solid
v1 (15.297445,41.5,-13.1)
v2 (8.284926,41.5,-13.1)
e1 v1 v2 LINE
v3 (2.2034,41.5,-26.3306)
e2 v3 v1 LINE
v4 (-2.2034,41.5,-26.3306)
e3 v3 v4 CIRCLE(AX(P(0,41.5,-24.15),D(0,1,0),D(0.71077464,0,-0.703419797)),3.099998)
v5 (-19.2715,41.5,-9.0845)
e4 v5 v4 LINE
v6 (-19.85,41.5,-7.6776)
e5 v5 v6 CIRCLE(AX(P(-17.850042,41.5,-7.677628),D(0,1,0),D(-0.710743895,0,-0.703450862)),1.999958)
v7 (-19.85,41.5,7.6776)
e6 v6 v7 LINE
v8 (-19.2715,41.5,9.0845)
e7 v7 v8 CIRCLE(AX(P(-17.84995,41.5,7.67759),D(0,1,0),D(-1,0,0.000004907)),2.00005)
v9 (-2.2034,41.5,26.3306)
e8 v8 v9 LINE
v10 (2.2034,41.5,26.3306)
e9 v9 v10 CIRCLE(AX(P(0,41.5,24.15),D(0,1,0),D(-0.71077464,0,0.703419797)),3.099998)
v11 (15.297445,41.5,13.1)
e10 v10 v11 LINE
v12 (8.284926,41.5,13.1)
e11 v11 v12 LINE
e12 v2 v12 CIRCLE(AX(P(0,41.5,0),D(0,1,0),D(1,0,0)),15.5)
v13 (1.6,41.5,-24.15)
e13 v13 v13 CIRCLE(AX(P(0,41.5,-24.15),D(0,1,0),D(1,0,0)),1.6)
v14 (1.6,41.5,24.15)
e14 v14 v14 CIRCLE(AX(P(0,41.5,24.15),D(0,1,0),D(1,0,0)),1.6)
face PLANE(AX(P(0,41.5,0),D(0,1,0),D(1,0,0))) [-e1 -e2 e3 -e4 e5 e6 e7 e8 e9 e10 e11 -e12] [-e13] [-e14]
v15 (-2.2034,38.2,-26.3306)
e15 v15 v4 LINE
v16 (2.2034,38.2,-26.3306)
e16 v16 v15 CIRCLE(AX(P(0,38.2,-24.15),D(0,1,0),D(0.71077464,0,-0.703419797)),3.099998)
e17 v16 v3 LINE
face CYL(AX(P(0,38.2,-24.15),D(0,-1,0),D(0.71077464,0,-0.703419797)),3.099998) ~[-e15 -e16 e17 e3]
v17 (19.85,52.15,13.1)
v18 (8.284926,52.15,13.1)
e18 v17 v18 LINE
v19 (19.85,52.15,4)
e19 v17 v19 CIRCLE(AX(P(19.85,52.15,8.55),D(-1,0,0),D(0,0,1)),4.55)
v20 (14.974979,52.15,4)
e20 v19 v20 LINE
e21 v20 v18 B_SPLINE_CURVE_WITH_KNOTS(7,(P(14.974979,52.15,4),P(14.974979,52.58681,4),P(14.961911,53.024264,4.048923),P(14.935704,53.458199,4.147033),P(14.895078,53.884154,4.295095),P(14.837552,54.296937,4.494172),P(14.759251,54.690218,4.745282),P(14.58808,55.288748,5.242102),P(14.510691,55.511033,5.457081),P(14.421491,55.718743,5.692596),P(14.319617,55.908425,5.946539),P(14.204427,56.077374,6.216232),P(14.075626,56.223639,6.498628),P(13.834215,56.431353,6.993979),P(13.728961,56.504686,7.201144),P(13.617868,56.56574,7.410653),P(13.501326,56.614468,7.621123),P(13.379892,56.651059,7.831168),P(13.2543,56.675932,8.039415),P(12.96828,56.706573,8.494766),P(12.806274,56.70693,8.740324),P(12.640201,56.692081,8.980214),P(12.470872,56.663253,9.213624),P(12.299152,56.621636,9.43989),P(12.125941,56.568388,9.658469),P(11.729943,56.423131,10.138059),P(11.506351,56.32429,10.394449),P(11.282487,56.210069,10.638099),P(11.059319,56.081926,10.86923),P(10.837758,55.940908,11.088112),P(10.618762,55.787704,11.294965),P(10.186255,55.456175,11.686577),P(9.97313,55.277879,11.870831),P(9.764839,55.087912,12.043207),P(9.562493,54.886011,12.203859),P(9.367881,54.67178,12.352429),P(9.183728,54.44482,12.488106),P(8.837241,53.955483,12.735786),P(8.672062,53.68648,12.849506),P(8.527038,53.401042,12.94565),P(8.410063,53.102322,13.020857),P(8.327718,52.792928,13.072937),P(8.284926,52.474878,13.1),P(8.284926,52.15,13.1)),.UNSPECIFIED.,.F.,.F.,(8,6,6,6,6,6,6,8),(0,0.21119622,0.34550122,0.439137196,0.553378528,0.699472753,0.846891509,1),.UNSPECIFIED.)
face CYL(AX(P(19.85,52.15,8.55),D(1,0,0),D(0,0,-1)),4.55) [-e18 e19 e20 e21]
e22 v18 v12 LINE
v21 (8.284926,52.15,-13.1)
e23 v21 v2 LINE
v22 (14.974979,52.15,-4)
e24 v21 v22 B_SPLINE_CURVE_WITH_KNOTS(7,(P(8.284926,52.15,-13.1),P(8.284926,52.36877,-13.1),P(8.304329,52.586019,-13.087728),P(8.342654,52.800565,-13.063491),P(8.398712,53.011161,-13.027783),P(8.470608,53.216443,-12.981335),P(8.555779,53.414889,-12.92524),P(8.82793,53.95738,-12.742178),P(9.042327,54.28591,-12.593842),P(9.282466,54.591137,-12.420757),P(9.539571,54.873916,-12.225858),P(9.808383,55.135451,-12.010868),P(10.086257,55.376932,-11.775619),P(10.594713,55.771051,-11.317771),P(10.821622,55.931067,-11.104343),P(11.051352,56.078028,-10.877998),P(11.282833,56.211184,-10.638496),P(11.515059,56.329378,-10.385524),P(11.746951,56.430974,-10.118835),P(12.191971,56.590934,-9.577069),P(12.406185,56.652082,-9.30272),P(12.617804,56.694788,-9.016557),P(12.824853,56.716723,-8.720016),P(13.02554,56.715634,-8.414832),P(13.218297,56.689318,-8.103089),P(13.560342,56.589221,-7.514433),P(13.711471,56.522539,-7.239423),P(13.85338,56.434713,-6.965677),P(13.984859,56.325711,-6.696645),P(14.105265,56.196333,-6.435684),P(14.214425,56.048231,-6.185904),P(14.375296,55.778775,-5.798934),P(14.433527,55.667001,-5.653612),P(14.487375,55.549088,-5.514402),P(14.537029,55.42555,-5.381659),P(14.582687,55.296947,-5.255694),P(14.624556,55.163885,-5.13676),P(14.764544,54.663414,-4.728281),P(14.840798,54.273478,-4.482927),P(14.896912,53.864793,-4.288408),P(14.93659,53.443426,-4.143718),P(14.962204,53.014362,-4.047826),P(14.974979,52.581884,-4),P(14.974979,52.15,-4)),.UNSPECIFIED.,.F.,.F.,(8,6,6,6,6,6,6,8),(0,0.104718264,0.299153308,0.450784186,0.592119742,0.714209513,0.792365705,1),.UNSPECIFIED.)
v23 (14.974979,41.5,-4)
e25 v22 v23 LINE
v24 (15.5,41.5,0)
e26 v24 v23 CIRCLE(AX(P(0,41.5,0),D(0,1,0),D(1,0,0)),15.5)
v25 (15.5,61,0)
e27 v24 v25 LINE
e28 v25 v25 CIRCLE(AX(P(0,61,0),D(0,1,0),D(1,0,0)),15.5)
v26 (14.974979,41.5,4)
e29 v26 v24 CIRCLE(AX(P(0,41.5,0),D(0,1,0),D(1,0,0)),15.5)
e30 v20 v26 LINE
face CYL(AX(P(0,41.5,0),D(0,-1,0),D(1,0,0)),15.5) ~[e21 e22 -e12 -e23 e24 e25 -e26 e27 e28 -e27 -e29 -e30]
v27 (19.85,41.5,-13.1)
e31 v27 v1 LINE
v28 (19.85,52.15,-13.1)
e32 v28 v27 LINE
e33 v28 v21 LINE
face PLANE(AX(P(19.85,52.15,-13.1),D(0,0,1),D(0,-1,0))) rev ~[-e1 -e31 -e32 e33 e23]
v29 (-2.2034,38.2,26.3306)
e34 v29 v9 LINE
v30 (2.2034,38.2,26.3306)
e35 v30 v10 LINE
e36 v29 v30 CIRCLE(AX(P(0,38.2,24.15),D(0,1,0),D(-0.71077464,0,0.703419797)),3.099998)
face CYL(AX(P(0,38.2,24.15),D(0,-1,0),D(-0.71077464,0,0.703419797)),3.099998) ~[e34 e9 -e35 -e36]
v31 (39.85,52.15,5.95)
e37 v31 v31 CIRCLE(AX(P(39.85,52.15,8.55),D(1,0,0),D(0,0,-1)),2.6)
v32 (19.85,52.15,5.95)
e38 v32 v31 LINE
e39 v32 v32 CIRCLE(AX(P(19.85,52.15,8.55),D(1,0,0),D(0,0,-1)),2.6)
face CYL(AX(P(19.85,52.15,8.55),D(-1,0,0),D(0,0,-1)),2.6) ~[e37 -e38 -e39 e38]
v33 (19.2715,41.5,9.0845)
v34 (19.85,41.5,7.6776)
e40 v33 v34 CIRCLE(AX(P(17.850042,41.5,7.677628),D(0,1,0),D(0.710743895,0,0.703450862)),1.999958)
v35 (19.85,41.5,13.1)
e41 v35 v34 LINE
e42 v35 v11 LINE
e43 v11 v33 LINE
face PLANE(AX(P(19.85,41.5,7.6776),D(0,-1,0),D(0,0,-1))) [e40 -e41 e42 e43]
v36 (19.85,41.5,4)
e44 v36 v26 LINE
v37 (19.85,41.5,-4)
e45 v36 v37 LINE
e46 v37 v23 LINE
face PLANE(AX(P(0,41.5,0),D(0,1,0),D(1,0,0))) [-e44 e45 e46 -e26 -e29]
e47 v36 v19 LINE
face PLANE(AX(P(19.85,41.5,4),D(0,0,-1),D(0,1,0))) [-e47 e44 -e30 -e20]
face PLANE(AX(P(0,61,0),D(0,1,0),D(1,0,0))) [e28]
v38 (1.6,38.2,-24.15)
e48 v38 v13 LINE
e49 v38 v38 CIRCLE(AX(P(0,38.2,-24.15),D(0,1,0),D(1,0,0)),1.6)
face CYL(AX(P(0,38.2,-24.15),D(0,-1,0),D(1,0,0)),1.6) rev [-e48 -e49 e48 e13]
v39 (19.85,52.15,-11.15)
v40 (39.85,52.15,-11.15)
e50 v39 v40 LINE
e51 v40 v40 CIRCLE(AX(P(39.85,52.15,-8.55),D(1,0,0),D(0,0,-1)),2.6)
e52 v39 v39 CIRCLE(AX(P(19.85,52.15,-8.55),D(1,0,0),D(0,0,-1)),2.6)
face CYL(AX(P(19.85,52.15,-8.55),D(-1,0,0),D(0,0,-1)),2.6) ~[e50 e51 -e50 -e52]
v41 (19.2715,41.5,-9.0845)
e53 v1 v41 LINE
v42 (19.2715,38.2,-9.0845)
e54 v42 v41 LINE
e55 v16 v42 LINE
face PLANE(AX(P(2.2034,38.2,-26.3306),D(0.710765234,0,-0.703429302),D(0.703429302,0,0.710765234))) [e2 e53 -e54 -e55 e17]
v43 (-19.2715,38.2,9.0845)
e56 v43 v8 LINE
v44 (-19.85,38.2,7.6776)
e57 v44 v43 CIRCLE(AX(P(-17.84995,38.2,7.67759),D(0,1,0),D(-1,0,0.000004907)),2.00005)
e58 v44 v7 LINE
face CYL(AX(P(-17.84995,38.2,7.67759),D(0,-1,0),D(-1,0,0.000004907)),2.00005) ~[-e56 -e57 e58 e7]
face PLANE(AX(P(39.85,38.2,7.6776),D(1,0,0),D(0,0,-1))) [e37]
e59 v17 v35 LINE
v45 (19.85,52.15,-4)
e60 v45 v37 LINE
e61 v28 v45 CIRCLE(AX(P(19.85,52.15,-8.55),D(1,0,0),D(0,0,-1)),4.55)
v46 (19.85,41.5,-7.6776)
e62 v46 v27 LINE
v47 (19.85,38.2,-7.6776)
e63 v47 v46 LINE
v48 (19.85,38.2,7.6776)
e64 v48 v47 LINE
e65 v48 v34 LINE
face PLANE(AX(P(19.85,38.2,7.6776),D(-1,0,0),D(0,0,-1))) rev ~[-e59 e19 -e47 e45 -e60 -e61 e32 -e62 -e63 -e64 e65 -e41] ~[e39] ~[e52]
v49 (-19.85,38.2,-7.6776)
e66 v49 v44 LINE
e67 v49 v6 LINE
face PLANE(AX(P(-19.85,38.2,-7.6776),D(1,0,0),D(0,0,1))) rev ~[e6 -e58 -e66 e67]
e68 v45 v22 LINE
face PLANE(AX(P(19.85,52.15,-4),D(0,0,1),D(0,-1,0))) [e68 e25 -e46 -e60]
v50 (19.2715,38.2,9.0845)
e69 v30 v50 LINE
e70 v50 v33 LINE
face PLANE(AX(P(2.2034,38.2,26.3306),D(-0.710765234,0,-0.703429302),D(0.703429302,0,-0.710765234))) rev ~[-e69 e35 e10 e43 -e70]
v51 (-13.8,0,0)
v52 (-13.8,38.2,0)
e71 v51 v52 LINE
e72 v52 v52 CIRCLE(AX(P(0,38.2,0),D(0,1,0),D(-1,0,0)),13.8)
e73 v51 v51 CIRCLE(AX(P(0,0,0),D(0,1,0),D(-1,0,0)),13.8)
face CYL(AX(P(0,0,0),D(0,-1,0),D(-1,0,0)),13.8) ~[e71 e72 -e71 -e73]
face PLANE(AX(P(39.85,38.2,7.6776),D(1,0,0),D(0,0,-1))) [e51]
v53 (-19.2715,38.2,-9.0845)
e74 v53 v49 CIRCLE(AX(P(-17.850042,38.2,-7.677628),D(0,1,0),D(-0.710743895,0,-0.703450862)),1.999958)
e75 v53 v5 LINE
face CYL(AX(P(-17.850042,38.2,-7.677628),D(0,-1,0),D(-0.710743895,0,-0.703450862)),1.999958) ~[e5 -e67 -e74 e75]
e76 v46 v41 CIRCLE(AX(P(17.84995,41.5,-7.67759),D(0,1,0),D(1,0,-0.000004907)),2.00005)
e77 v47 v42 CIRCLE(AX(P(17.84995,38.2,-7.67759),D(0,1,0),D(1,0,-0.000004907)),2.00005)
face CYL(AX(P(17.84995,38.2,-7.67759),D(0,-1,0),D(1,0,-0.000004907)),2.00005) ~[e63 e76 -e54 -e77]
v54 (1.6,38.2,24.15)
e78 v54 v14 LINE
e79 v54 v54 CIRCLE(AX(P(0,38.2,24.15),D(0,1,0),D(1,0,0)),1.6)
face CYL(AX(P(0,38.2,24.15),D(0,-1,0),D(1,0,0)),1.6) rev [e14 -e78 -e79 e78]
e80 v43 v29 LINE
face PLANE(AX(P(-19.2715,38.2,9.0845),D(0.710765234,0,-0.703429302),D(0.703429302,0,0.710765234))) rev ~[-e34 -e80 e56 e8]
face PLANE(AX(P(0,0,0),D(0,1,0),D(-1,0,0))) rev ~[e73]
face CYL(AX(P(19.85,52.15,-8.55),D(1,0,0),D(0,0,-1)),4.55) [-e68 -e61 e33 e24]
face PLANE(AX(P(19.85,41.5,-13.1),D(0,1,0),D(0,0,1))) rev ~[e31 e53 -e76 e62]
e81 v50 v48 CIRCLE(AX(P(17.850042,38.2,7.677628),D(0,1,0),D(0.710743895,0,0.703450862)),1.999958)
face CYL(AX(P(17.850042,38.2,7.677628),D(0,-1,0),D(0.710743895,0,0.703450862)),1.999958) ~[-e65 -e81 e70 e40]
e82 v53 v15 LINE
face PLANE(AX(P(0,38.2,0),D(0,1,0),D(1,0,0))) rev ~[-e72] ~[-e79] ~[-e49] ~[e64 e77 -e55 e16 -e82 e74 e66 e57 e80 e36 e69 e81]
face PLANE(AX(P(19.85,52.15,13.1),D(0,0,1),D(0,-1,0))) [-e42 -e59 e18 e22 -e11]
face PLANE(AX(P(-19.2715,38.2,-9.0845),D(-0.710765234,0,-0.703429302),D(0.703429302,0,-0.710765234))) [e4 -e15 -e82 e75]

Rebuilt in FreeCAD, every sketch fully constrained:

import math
import FreeCAD as App
import Part
import Sketcher
Q = App.Units.Quantity

doc = App.newDocument("Part")
body = doc.addObject("PartDesign::Body", "Body")

sketch1 = body.newObject("Sketcher::SketchObject", "Sketch")
sketch1.AttachmentSupport = (doc.getObject("XZ_Plane"), [""])
sketch1.MapMode = "FlatFace"
sketch1.addGeometry(Part.Circle(App.Vector(0, 0, 0), App.Vector(0, 0, 1), 14), False)
sketch1.addConstraint([
    Sketcher.Constraint("Coincident", 0, 3, -1, 1),
    Sketcher.Constraint("Diameter", 0, Q("27.6 mm")),
])
pad1 = body.newObject("PartDesign::Pad", "Pad")
pad1.Profile = sketch1
pad1.Length = 38.2
pad1.Reversed = True

sketch2 = body.newObject("Sketcher::SketchObject", "Sketch001")
sketch2.AttachmentSupport = (doc.getObject("XZ_Plane"), [""])
sketch2.MapMode = "FlatFace"
sketch2.AttachmentOffset = App.Placement(App.Vector(0, 0, -38.2), App.Rotation())
sketch2.addGeometry([
    Part.ArcOfCircle(Part.Circle(App.Vector(17.9, 7.7, 0), App.Vector(0, 0, 1), 2), math.radians(0), math.radians(45)),
    Part.LineSegment(App.Vector(19.9, 7.7, 0), App.Vector(19.9, -7.7, 0)),
    Part.ArcOfCircle(Part.Circle(App.Vector(17.9, -7.7, 0), App.Vector(0, 0, 1), 2), math.radians(-45), math.radians(0)),
    Part.LineSegment(App.Vector(19.3, -9.1, 0), App.Vector(2.2, -26.3, 0)),
    Part.ArcOfCircle(Part.Circle(App.Vector(0, -24.1, 0), App.Vector(0, 0, 1), 3.1), math.radians(-135), math.radians(-45)),
    Part.LineSegment(App.Vector(-2.2, -26.3, 0), App.Vector(-19.3, -9.1, 0)),
    Part.ArcOfCircle(Part.Circle(App.Vector(-17.9, -7.7, 0), App.Vector(0, 0, 1), 2), math.radians(180), math.radians(225)),
    Part.LineSegment(App.Vector(-19.9, -7.7, 0), App.Vector(-19.9, 7.7, 0)),
    Part.ArcOfCircle(Part.Circle(App.Vector(-17.9, 7.7, 0), App.Vector(0, 0, 1), 2), math.radians(135), math.radians(180)),
    Part.LineSegment(App.Vector(-19.3, 9.1, 0), App.Vector(-2.2, 26.3, 0)),
    Part.ArcOfCircle(Part.Circle(App.Vector(0, 24.1, 0), App.Vector(0, 0, 1), 3.1), math.radians(45), math.radians(135)),
    Part.LineSegment(App.Vector(2.2, 26.3, 0), App.Vector(19.3, 9.1, 0)),
    Part.Circle(App.Vector(0, 24.1, 0), App.Vector(0, 0, 1), 1.6),
    Part.Circle(App.Vector(0, -24.1, 0), App.Vector(0, 0, 1), 1.6),
], False)
sketch2.addConstraint([
    Sketcher.Constraint("Tangent", 0, 1, 1, 1),
    Sketcher.Constraint("Tangent", 1, 2, 2, 2),
    Sketcher.Constraint("Tangent", 2, 1, 3, 1),
    Sketcher.Constraint("Tangent", 3, 2, 4, 2),
    Sketcher.Constraint("Tangent", 4, 1, 5, 1),
    Sketcher.Constraint("Tangent", 5, 2, 6, 2),
    Sketcher.Constraint("Tangent", 6, 1, 7, 1),
    Sketcher.Constraint("Tangent", 7, 2, 8, 2),
    Sketcher.Constraint("Tangent", 8, 1, 9, 1),
    Sketcher.Constraint("Tangent", 9, 2, 10, 2),
    Sketcher.Constraint("Tangent", 10, 1, 11, 1),
    Sketcher.Constraint("Tangent", 11, 2, 0, 2),
    Sketcher.Constraint("Vertical", 1),
    Sketcher.Constraint("Vertical", 7),
    Sketcher.Constraint("Coincident", 12, 3, 10, 3),
    Sketcher.Constraint("Coincident", 13, 3, 4, 3),
    Sketcher.Constraint("Equal", 0, 2),
    Sketcher.Constraint("Equal", 2, 6),
    Sketcher.Constraint("Equal", 6, 8),
    Sketcher.Constraint("Equal", 4, 10),
    Sketcher.Constraint("Equal", 12, 13),
    Sketcher.Constraint("Symmetric", 0, 3, 6, 3, -1, 1),
    Sketcher.Constraint("Symmetric", 4, 3, 10, 3, -1, 1),
    Sketcher.Constraint("Symmetric", 3, 2, 4, 1, -2),
    Sketcher.Constraint("Parallel", 3, 9),
    Sketcher.Constraint("Radius", 0, Q("2 mm")),
    Sketcher.Constraint("Diameter", 12, Q("3.2 mm")),
    Sketcher.Constraint("Radius", 4, Q("3.1 mm")),
    Sketcher.Constraint("DistanceX", 6, 3, 2, 3, Q("35.7 mm")),
    Sketcher.Constraint("DistanceY", 4, 3, 10, 3, Q("48.3 mm")),
    Sketcher.Constraint("DistanceY", 1, 2, 1, 1, Q("15.3552 mm")),
])
pad2 = body.newObject("PartDesign::Pad", "Pad001")
pad2.Profile = sketch2
pad2.Length = 3.3
pad2.Reversed = True

sketch3 = body.newObject("Sketcher::SketchObject", "Sketch002")
sketch3.AttachmentSupport = (doc.getObject("XZ_Plane"), [""])
sketch3.MapMode = "FlatFace"
sketch3.AttachmentOffset = App.Placement(App.Vector(0, 0, -41.5), App.Rotation())
sketch3.addGeometry(Part.Circle(App.Vector(0, 0, 0), App.Vector(0, 0, 1), 16), False)
sketch3.addConstraint([
    Sketcher.Constraint("Coincident", 0, 3, -1, 1),
    Sketcher.Constraint("Diameter", 0, Q("31 mm")),
])
pad3 = body.newObject("PartDesign::Pad", "Pad002")
pad3.Profile = sketch3
pad3.Length = 19.5
pad3.Reversed = True

sketch4 = body.newObject("Sketcher::SketchObject", "Sketch003")
sketch4.AttachmentSupport = (doc.getObject("YZ_Plane"), [""])
sketch4.MapMode = "FlatFace"
sketch4.AttachmentOffset = App.Placement(App.Vector(0, 0, 19.85), App.Rotation())
sketch4.addGeometry([
    Part.LineSegment(App.Vector(41.5, 4, 0), App.Vector(52.1, 4, 0)),
    Part.ArcOfCircle(Part.Circle(App.Vector(52.1, 8.6, 0), App.Vector(0, 0, 1), 4.5), math.radians(-90), math.radians(90)),
    Part.LineSegment(App.Vector(52.1, 13.1, 0), App.Vector(41.5, 13.1, 0)),
    Part.LineSegment(App.Vector(41.5, 13.1, 0), App.Vector(41.5, 4, 0)),
    Part.ArcOfCircle(Part.Circle(App.Vector(52.1, -8.6, 0), App.Vector(0, 0, 1), 4.6), math.radians(-90), math.radians(90)),
    Part.LineSegment(App.Vector(52.1, -4, 0), App.Vector(41.5, -4, 0)),
    Part.LineSegment(App.Vector(41.5, -4, 0), App.Vector(41.5, -13.1, 0)),
    Part.LineSegment(App.Vector(41.5, -13.1, 0), App.Vector(52.1, -13.1, 0)),
], False)
sketch4.addConstraint([
    Sketcher.Constraint("Tangent", 0, 2, 1, 1),
    Sketcher.Constraint("Tangent", 1, 2, 2, 1),
    Sketcher.Constraint("Coincident", 2, 2, 3, 1),
    Sketcher.Constraint("Coincident", 3, 2, 0, 1),
    Sketcher.Constraint("Tangent", 4, 2, 5, 1),
    Sketcher.Constraint("Coincident", 5, 2, 6, 1),
    Sketcher.Constraint("Coincident", 6, 2, 7, 1),
    Sketcher.Constraint("Tangent", 7, 2, 4, 1),
    Sketcher.Constraint("Horizontal", 0),
    Sketcher.Constraint("Horizontal", 2),
    Sketcher.Constraint("Vertical", 3),
    Sketcher.Constraint("Horizontal", 5),
    Sketcher.Constraint("Vertical", 6),
    Sketcher.Constraint("Horizontal", 7),
    Sketcher.Constraint("Equal", 1, 4),
    Sketcher.Constraint("Symmetric", 1, 3, 4, 3, -1),
    Sketcher.Constraint("Vertical", 3, 2, 5, 2),
    Sketcher.Constraint("Radius", 1, Q("4.55 mm")),
    Sketcher.Constraint("DistanceY", 4, 2, 0, 2, Q("8 mm")),
    Sketcher.Constraint("DistanceX", 0, 1, 0, 2, Q("10.65 mm")),
    Sketcher.Constraint("DistanceX", -1, 1, 2, 2, Q("41.5 mm")),
])
pad4 = body.newObject("PartDesign::Pad", "Pad003")
pad4.Profile = sketch4
pad4.Length = 11.5651
pad4.Reversed = True

sketch5 = body.newObject("Sketcher::SketchObject", "Sketch004")
sketch5.AttachmentSupport = (doc.getObject("YZ_Plane"), [""])
sketch5.MapMode = "FlatFace"
sketch5.AttachmentOffset = App.Placement(App.Vector(0, 0, 19.85), App.Rotation())
sketch5.addGeometry([
    Part.Circle(App.Vector(52.1, 8.6, 0), App.Vector(0, 0, 1), 2.6),
    Part.Circle(App.Vector(52.1, -8.6, 0), App.Vector(0, 0, 1), 2.6),
], False)
sketch5.addConstraint([
    Sketcher.Constraint("Equal", 0, 1),
    Sketcher.Constraint("Symmetric", 0, 3, 1, 3, -1),
    Sketcher.Constraint("Diameter", 0, Q("5.2 mm")),
    Sketcher.Constraint("DistanceY", 1, 3, 0, 3, Q("17.1 mm")),
    Sketcher.Constraint("DistanceX", -1, 1, 0, 3, Q("52.15 mm")),
])
pad5 = body.newObject("PartDesign::Pad", "Pad004")
pad5.Profile = sketch5
pad5.Length = 20

doc.recompute()
